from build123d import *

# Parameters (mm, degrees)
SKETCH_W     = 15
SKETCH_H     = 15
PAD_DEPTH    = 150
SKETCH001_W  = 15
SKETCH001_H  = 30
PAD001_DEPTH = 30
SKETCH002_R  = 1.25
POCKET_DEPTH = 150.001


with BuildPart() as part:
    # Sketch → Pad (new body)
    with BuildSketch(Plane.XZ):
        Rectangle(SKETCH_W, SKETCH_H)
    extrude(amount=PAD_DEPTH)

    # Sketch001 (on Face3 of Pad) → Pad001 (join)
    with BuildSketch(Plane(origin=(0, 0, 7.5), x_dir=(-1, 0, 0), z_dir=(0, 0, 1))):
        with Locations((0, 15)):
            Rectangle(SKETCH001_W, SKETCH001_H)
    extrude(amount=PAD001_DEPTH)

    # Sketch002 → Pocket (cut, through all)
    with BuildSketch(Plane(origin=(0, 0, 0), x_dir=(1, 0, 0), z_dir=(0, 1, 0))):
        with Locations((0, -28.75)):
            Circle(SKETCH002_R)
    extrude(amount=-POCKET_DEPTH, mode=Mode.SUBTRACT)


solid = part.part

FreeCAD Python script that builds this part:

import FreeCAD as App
import Part
import Sketcher
from FreeCAD import Vector

doc = App.newDocument("Part")
body = doc.addObject("PartDesign::Body", "Body")

sketch1 = doc.addObject("Sketcher::SketchObject", "Sketch")
body.addObject(sketch1)
sketch1.AttachmentSupport = (doc.XZ_Plane, [""])
sketch1.MapMode = "FlatFace"
sketch1.addGeometry([
    Part.LineSegment(Vector(-7.5, 7.5, 0), Vector(-7.5, -7.5, 0)),
    Part.LineSegment(Vector(-7.5, -7.5, 0), Vector(7.5, -7.5, 0)),
    Part.LineSegment(Vector(7.5, -7.5, 0), Vector(7.5, 7.5, 0)),
    Part.LineSegment(Vector(7.5, 7.5, 0), Vector(-7.5, 7.5, 0)),
], False)
sketch1.addConstraint([
    Sketcher.Constraint("Coincident", 0, 2, 1, 1),
    Sketcher.Constraint("Coincident", 1, 2, 2, 1),
    Sketcher.Constraint("Coincident", 2, 2, 3, 1),
    Sketcher.Constraint("Coincident", 3, 2, 0, 1),
    Sketcher.Constraint("Vertical", 0),
    Sketcher.Constraint("Horizontal", 1),
    Sketcher.Constraint("Vertical", 2),
    Sketcher.Constraint("Horizontal", 3),
    Sketcher.Constraint("Symmetric", 0, 2, 2, 2, -1, 1),
    Sketcher.Constraint("Equal", 3, 0),
    Sketcher.Constraint("DistanceX", 1, 1, 1, 2, 15.0),
])
pad1 = doc.addObject("PartDesign::Pad", "Pad")
body.addObject(pad1)
pad1.Profile = sketch1
pad1.Length = 150

sketch2 = doc.addObject("Sketcher::SketchObject", "Sketch001")
body.addObject(sketch2)
sketch2.AttachmentSupport = (doc.XY_Plane, [""])
sketch2.MapMode = "FlatFace"
sketch2.AttachmentOffset = App.Placement(Vector(0, 0, 7.5), App.Rotation())
sketch2.addGeometry([
    Part.LineSegment(Vector(7.5, -30, 0), Vector(7.5, 0, 0)),
    Part.LineSegment(Vector(7.5, 0, 0), Vector(-7.5, 0, 0)),
    Part.LineSegment(Vector(-7.5, 0, 0), Vector(-7.5, -30, 0)),
    Part.LineSegment(Vector(-7.5, -30, 0), Vector(7.5, -30, 0)),
], False)
sketch2.addConstraint([
    Sketcher.Constraint("Coincident", 0, 2, 1, 1),
    Sketcher.Constraint("Coincident", 1, 2, 2, 1),
    Sketcher.Constraint("Coincident", 2, 2, 3, 1),
    Sketcher.Constraint("Coincident", 3, 2, 0, 1),
    Sketcher.Constraint("Vertical", 0),
    Sketcher.Constraint("Horizontal", 1),
    Sketcher.Constraint("Vertical", 2),
    Sketcher.Constraint("Horizontal", 3),
    Sketcher.Constraint("Symmetric", 0, 2, 1, 2, -1, 1),
    Sketcher.Constraint("DistanceX", 1, 2, 1, 1, 15.0),
    Sketcher.Constraint("DistanceY", 0, 1, 0, 2, 30.0),
])
pad2 = doc.addObject("PartDesign::Pad", "Pad001")
body.addObject(pad2)
pad2.Profile = sketch2
pad2.Length = 30

sketch3 = doc.addObject("Sketcher::SketchObject", "Sketch002")
body.addObject(sketch3)
sketch3.AttachmentSupport = (doc.XZ_Plane, [""])
sketch3.MapMode = "FlatFace"
sketch3.addGeometry(Part.Circle(Vector(0, 28.75, 0), Vector(0, 0, 1), 1.25), False)
sketch3.addConstraint([
    Sketcher.Constraint("PointOnObject", 0, 3, -2),
    Sketcher.Constraint("Diameter", 0, 2.5),
    Sketcher.Constraint("DistanceY", -1, 1, 0, 3, 28.75),
])
pocket1 = doc.addObject("PartDesign::Pocket", "Pocket")
body.addObject(pocket1)
pocket1.Profile = sketch3
pocket1.Type = "ThroughAll"
pocket1.Reversed = True

doc.recompute()
